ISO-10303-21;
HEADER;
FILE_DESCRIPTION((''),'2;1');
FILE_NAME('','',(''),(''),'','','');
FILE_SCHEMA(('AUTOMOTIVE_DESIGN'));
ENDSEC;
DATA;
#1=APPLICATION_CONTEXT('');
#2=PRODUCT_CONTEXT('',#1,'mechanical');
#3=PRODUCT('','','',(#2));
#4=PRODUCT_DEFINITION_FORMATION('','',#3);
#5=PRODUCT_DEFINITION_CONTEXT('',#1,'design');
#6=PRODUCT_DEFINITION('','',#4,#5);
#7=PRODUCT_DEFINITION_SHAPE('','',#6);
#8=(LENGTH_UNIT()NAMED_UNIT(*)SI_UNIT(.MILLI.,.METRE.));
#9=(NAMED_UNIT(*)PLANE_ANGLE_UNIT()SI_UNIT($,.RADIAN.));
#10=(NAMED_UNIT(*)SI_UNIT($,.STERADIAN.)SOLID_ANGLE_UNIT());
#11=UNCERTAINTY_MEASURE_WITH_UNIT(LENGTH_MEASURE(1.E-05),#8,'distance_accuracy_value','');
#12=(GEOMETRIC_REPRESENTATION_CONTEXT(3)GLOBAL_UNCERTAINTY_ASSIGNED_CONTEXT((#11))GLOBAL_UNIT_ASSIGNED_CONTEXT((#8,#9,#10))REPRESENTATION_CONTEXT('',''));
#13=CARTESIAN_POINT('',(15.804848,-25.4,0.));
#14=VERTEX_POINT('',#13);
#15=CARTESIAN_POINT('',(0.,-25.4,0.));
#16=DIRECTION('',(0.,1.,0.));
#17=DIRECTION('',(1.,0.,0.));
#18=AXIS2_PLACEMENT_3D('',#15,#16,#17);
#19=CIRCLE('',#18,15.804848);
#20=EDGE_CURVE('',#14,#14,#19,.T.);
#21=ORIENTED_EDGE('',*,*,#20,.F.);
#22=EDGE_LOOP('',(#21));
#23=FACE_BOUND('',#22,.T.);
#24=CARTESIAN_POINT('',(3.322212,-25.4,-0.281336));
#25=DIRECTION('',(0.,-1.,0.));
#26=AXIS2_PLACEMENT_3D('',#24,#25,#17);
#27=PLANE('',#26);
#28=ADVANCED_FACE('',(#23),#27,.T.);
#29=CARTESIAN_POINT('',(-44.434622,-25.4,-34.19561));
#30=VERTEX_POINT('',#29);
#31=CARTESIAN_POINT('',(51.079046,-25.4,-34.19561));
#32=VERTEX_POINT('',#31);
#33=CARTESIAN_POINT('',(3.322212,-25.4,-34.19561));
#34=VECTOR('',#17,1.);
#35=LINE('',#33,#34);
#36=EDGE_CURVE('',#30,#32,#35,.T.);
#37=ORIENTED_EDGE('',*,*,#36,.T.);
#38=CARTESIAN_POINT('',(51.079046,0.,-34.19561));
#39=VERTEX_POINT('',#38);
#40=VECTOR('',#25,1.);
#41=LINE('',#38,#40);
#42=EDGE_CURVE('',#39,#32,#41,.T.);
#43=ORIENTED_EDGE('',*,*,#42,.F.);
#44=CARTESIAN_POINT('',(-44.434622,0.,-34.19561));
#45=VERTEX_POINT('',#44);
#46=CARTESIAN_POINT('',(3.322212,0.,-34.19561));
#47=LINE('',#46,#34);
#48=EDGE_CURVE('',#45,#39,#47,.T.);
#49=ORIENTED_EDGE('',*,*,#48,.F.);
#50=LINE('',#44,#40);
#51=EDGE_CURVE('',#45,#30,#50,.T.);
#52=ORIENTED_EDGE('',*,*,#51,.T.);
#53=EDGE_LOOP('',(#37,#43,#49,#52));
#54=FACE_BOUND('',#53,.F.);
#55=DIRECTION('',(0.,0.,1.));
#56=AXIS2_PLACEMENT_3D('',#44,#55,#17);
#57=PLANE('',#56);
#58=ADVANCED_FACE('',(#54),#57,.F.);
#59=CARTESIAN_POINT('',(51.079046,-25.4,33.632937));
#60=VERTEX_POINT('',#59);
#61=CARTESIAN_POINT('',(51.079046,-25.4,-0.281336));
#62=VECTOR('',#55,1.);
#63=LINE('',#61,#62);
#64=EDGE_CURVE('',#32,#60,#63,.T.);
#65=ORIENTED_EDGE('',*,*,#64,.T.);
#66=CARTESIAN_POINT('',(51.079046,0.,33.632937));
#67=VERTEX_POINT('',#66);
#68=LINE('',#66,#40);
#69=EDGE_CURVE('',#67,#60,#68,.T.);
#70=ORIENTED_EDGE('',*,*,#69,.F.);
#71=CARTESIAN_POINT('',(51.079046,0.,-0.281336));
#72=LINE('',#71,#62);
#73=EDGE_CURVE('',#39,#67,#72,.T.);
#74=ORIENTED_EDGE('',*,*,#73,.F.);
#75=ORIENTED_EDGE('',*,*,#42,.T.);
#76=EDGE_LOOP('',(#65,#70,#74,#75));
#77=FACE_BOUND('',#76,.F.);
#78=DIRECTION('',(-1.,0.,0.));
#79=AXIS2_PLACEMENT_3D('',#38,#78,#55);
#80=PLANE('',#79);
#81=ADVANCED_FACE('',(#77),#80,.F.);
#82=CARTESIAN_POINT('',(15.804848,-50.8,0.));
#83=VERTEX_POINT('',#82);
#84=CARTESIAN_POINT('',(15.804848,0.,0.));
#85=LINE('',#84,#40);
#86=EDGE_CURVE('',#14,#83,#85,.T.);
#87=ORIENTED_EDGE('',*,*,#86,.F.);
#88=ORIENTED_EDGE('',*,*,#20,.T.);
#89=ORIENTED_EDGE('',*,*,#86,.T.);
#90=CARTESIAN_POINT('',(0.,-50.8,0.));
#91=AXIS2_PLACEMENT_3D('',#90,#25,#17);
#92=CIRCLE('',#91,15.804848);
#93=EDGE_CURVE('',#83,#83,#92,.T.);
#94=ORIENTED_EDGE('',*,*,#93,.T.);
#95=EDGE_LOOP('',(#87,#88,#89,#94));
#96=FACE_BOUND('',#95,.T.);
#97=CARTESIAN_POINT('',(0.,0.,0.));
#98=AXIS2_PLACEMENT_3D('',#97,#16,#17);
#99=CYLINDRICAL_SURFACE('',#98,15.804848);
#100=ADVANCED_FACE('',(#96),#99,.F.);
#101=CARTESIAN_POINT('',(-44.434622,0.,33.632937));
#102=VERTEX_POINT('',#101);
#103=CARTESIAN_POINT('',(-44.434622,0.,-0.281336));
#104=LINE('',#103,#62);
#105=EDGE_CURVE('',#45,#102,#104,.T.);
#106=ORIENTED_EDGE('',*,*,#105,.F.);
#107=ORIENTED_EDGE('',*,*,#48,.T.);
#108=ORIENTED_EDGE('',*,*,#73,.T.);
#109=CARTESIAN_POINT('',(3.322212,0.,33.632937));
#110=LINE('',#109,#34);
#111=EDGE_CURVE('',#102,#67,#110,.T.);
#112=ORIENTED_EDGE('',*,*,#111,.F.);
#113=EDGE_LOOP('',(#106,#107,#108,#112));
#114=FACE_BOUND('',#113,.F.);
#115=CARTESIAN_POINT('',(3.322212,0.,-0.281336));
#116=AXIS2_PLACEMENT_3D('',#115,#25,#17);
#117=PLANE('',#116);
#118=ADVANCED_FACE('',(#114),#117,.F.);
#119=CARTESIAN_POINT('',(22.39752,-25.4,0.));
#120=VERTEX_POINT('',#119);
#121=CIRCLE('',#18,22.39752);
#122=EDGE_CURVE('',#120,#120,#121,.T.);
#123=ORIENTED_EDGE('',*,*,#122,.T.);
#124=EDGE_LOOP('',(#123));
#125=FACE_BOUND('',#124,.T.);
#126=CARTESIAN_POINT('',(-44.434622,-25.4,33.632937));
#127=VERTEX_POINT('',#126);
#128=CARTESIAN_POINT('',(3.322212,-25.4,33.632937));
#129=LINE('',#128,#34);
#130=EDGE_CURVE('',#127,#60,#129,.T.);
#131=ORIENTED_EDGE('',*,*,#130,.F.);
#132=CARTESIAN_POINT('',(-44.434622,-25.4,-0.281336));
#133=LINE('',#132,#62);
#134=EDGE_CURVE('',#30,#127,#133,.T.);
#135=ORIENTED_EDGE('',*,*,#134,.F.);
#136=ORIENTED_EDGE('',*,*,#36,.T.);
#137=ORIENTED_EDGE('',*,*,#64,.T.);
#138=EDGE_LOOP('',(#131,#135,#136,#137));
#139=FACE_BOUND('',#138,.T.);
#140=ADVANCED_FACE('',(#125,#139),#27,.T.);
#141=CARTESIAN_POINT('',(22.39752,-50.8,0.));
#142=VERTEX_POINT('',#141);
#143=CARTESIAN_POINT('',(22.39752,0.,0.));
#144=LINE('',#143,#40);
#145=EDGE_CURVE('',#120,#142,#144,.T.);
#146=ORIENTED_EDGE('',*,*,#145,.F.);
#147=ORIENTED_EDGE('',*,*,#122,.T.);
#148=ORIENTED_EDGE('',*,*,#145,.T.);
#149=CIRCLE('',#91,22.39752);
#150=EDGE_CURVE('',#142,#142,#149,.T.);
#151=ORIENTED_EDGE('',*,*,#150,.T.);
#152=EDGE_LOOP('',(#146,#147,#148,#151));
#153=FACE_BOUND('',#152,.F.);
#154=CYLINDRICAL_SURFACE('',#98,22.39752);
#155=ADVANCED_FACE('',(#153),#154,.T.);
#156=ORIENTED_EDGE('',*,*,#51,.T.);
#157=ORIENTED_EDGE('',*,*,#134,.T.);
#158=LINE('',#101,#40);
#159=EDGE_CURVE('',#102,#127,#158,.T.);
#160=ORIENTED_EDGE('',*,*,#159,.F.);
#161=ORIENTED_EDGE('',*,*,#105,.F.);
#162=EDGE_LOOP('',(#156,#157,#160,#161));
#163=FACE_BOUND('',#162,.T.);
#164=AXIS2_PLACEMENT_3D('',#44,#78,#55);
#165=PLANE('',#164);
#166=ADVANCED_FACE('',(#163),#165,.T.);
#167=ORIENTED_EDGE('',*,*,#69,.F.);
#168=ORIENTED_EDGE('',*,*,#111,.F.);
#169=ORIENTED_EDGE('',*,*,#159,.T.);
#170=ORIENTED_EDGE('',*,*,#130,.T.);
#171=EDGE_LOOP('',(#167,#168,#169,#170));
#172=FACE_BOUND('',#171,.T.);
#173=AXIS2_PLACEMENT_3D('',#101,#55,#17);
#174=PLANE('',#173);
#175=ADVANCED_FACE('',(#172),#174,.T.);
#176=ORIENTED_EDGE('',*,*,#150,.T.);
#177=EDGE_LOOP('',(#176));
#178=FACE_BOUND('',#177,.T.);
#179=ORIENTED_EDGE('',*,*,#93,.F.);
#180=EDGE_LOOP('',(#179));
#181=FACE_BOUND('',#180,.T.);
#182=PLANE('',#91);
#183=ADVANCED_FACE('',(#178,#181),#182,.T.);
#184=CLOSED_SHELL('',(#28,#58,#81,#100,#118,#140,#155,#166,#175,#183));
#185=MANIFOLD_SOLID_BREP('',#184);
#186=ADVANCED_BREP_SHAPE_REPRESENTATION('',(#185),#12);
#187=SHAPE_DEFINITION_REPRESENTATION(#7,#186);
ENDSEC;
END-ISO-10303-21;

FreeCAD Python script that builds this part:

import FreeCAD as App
import Part
import Sketcher
Q = App.Units.Quantity


def add_polygon(sketch, points):
    """Adds a closed chain of lines whose ends are joined by coincident constraints."""
    first, n = sketch.GeometryCount, len(points)
    for a, b in zip(points, points[1:] + points[:1]):
        sketch.addGeometry(Part.LineSegment(App.Vector(*a, 0), App.Vector(*b, 0)), False)
    for i in range(n):
        sketch.addConstraint(Sketcher.Constraint("Coincident", first + i, 2, first + (i + 1) % n, 1))

doc = App.newDocument("Part")
body = doc.addObject("PartDesign::Body", "Body")

# Sketch on XZ plane
sketch1 = doc.addObject("Sketcher::SketchObject", "Sketch")
body.addObject(sketch1)
sketch1.AttachmentSupport = (doc.XZ_Plane, [""])
sketch1.MapMode = "FlatFace"
sketch1.addGeometry([
    Part.Circle(App.Vector(0, 0, 0), App.Vector(0, 0, 1), 22),
    Part.Circle(App.Vector(0, 0, 0), App.Vector(0, 0, 1), 16),
], False)
sketch1.addConstraint([
    Sketcher.Constraint("Coincident", 0, 3, -1, 1),
    Sketcher.Constraint("Coincident", 1, 3, -1, 1),
    Sketcher.Constraint("Diameter", 0, Q("44.79504 mm")),
    Sketcher.Constraint("Diameter", 1, Q("31.609696 mm")),
])
pad1 = doc.addObject("PartDesign::Pad", "Pad")
body.addObject(pad1)
pad1.Profile = sketch1
pad1.Length = Q("2 in")

# Sketch on XZ plane
sketch2 = doc.addObject("Sketcher::SketchObject", "Sketch001")
body.addObject(sketch2)
sketch2.AttachmentSupport = (doc.XZ_Plane, [""])
sketch2.MapMode = "FlatFace"
add_polygon(sketch2, [(-44, 34), (-44, -34), (51, -34), (51, 34)])  # lines 0-3
sketch2.addConstraint([
    Sketcher.Constraint("Vertical", 0),
    Sketcher.Constraint("Horizontal", 1),
    Sketcher.Constraint("Vertical", 2),
    Sketcher.Constraint("Horizontal", 3),
    Sketcher.Constraint("DistanceX", 1, 1, 1, 2, Q("95.513668 mm")),
    Sketcher.Constraint("DistanceY", 0, 2, 0, 1, Q("67.828547 mm")),
    Sketcher.Constraint("DistanceX", 0, 2, -1, 1, Q("44.434622 mm")),
    Sketcher.Constraint("DistanceY", 0, 2, -1, 1, Q("34.19561 mm")),
])
pad2 = doc.addObject("PartDesign::Pad", "Pad001")
body.addObject(pad2)
pad2.Profile = sketch2
pad2.Length = Q("1 in")

doc.recompute()
